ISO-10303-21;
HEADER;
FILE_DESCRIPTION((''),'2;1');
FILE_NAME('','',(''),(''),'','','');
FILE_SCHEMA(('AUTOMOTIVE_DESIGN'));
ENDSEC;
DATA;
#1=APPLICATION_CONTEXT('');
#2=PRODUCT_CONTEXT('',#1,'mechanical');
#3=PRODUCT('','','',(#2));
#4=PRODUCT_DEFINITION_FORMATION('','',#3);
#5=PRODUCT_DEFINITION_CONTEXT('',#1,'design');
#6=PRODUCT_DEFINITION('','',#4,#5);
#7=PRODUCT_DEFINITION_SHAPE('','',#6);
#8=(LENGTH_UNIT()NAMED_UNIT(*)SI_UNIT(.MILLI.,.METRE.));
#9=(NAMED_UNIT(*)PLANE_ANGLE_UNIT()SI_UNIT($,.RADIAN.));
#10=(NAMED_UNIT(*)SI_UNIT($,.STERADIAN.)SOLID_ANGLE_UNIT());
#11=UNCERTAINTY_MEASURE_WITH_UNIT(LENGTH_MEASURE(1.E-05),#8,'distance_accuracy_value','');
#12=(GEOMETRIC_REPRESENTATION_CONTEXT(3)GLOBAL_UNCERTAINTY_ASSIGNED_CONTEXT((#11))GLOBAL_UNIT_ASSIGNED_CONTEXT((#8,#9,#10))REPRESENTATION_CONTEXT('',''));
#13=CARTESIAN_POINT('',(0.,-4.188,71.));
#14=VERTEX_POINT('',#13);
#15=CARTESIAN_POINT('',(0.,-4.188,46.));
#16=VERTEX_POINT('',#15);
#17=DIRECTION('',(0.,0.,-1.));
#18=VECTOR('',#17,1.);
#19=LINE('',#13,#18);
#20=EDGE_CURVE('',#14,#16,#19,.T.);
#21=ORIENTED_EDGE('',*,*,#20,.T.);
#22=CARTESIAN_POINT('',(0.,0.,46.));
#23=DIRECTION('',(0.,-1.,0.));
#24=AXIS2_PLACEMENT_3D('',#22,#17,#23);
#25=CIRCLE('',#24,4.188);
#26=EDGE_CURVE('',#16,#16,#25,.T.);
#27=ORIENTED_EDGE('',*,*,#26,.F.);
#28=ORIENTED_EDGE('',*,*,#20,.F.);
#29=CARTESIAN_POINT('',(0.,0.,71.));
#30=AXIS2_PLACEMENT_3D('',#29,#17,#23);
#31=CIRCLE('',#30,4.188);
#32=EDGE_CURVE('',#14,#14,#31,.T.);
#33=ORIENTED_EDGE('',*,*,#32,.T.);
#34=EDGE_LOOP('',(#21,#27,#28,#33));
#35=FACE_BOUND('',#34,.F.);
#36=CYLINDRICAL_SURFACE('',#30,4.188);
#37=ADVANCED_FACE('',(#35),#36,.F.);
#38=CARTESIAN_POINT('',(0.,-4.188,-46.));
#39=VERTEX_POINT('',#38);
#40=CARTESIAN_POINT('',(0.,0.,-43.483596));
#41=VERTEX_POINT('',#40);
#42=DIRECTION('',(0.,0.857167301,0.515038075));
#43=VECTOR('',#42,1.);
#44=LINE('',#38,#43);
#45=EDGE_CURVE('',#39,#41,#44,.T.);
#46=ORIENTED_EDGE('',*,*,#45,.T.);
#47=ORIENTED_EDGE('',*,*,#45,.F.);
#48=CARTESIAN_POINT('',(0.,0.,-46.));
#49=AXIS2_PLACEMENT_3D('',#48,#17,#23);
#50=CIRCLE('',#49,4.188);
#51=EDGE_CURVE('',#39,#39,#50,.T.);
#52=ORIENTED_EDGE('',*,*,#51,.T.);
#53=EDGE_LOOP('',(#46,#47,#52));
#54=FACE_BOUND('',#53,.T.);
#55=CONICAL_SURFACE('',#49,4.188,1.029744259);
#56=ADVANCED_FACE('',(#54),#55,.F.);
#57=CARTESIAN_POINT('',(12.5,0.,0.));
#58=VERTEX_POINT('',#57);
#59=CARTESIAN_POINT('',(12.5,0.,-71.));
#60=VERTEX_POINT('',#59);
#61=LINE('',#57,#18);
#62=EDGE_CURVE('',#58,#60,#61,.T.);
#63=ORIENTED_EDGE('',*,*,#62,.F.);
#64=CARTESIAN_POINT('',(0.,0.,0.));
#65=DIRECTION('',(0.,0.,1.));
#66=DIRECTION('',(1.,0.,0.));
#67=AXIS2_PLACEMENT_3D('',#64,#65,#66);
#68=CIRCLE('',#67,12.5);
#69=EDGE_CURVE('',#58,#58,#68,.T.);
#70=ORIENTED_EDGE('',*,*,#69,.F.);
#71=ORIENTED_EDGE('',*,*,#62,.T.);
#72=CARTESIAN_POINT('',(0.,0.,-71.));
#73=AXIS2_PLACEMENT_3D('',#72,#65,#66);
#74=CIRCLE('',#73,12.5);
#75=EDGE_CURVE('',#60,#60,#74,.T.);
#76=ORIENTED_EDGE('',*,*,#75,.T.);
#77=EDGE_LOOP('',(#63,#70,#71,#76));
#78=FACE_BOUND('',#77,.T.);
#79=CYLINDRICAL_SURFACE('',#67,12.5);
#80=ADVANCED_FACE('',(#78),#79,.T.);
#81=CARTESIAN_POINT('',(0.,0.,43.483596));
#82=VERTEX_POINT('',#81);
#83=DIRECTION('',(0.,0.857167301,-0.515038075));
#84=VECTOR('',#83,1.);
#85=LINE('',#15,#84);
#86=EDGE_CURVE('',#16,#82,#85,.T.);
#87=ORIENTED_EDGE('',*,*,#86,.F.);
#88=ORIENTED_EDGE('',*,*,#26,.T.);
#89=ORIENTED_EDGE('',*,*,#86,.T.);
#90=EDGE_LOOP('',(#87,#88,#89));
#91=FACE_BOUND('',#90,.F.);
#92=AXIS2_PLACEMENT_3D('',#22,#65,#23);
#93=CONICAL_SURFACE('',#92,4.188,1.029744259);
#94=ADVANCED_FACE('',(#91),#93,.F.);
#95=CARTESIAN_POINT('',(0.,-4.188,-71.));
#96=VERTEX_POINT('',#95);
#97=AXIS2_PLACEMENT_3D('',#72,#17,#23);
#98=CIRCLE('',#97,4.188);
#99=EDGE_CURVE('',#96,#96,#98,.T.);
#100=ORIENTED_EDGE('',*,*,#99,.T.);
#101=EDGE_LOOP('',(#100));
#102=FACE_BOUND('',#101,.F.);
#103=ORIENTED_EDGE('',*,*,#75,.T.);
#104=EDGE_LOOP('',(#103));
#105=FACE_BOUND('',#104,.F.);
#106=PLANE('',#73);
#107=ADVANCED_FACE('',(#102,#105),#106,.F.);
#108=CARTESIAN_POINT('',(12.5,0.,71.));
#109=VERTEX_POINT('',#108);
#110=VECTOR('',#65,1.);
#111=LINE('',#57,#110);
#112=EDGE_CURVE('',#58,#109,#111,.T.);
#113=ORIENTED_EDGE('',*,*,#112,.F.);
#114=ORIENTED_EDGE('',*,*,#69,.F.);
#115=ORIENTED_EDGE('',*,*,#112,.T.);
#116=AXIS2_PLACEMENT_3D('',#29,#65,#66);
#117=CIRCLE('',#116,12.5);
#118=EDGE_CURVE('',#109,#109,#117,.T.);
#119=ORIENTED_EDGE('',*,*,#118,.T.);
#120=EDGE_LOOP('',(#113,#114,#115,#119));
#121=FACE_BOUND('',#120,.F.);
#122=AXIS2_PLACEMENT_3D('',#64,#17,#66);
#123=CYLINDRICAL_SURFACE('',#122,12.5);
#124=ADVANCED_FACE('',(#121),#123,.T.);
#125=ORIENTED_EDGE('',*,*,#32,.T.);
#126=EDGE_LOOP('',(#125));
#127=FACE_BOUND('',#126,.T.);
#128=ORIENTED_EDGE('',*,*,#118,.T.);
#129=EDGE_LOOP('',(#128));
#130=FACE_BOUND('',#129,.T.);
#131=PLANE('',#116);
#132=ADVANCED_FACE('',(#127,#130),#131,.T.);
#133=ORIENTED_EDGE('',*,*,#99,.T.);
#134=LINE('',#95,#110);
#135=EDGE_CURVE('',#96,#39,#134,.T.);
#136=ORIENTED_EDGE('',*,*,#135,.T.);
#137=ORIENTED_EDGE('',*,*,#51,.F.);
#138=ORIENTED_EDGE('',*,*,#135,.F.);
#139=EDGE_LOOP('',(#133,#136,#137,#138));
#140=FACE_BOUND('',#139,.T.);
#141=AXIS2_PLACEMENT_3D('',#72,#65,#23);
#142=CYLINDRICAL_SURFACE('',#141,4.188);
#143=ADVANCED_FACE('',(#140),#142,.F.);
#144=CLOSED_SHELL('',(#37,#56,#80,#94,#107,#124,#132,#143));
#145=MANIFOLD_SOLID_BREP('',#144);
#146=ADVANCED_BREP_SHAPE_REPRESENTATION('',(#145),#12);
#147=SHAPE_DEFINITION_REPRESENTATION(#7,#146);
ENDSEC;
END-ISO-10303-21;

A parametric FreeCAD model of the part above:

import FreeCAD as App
import Part
import Sketcher

V = App.Vector

doc = App.newDocument("Part")
params = doc.addObject("Spreadsheet::Sheet", "Params")
for row, (alias, value) in enumerate([
    ("sketch1_diameter", "25 mm"),
    ("pad1_length", "142 mm"),
    ("hole_diameter", "8.376 mm"),
    ("hole_depth", "25 mm"),
], start=1):
    params.set(f"A{row}", alias)
    params.set(f"B{row}", "=" + value)
    params.setAlias(f"B{row}", alias)

body = doc.addObject("PartDesign::Body", "Body")

sketch1 = body.newObject("Sketcher::SketchObject", "Sketch")
sketch1.AttachmentSupport = (doc.getObject("XY_Plane"), [""])
sketch1.MapMode = "FlatFace"
sketch1.addGeometry(Part.Circle(V(0, 0, 0), V(0, 0, 1), 12), False)
sketch1.addConstraint([
    Sketcher.Constraint("Coincident", 0, 3, -1, 1),
    Sketcher.Constraint("Diameter", 0, 25.0),
])
sketch1.setExpression("Constraints[1]", "Params.sketch1_diameter")
pad1 = body.newObject("PartDesign::Pad", "Pad")
pad1.Profile = sketch1
pad1.setExpression("Length", "Params.pad1_length")
pad1.Midplane = True

sketch2 = body.newObject("Sketcher::SketchObject", "Sketch001")
sketch2.AttachmentSupport = (doc.getObject("XY_Plane"), [""])
sketch2.MapMode = "FlatFace"
sketch2.AttachmentOffset = App.Placement(V(0, 0, 71), App.Rotation())
sketch2.addGeometry(Part.Circle(V(0, 0, 0), V(0, 0, 1), 4.2), False)
sketch2.addConstraint([
    Sketcher.Constraint("Coincident", 0, 3, -1, 1),
    Sketcher.Constraint("Diameter", 0, 8.376),
])
doc.recompute()
hole = body.newObject("PartDesign::Hole", "Hole")
hole.Profile = sketch2
hole.ThreadType = "None"
hole.setExpression("Diameter", "Params.hole_diameter")
hole.DepthType = "Dimension"
hole.setExpression("Depth", "Params.hole_depth")
hole.DrillPoint = "Angled"
hole.DrillPointAngle = 118
doc.recompute()

mirrored = body.newObject("PartDesign::Mirrored", "Mirrored")
mirrored.Originals = [hole]
mirrored.MirrorPlane = (doc.getObject("XY_Plane"), [""])
body.Tip = mirrored

doc.recompute()
